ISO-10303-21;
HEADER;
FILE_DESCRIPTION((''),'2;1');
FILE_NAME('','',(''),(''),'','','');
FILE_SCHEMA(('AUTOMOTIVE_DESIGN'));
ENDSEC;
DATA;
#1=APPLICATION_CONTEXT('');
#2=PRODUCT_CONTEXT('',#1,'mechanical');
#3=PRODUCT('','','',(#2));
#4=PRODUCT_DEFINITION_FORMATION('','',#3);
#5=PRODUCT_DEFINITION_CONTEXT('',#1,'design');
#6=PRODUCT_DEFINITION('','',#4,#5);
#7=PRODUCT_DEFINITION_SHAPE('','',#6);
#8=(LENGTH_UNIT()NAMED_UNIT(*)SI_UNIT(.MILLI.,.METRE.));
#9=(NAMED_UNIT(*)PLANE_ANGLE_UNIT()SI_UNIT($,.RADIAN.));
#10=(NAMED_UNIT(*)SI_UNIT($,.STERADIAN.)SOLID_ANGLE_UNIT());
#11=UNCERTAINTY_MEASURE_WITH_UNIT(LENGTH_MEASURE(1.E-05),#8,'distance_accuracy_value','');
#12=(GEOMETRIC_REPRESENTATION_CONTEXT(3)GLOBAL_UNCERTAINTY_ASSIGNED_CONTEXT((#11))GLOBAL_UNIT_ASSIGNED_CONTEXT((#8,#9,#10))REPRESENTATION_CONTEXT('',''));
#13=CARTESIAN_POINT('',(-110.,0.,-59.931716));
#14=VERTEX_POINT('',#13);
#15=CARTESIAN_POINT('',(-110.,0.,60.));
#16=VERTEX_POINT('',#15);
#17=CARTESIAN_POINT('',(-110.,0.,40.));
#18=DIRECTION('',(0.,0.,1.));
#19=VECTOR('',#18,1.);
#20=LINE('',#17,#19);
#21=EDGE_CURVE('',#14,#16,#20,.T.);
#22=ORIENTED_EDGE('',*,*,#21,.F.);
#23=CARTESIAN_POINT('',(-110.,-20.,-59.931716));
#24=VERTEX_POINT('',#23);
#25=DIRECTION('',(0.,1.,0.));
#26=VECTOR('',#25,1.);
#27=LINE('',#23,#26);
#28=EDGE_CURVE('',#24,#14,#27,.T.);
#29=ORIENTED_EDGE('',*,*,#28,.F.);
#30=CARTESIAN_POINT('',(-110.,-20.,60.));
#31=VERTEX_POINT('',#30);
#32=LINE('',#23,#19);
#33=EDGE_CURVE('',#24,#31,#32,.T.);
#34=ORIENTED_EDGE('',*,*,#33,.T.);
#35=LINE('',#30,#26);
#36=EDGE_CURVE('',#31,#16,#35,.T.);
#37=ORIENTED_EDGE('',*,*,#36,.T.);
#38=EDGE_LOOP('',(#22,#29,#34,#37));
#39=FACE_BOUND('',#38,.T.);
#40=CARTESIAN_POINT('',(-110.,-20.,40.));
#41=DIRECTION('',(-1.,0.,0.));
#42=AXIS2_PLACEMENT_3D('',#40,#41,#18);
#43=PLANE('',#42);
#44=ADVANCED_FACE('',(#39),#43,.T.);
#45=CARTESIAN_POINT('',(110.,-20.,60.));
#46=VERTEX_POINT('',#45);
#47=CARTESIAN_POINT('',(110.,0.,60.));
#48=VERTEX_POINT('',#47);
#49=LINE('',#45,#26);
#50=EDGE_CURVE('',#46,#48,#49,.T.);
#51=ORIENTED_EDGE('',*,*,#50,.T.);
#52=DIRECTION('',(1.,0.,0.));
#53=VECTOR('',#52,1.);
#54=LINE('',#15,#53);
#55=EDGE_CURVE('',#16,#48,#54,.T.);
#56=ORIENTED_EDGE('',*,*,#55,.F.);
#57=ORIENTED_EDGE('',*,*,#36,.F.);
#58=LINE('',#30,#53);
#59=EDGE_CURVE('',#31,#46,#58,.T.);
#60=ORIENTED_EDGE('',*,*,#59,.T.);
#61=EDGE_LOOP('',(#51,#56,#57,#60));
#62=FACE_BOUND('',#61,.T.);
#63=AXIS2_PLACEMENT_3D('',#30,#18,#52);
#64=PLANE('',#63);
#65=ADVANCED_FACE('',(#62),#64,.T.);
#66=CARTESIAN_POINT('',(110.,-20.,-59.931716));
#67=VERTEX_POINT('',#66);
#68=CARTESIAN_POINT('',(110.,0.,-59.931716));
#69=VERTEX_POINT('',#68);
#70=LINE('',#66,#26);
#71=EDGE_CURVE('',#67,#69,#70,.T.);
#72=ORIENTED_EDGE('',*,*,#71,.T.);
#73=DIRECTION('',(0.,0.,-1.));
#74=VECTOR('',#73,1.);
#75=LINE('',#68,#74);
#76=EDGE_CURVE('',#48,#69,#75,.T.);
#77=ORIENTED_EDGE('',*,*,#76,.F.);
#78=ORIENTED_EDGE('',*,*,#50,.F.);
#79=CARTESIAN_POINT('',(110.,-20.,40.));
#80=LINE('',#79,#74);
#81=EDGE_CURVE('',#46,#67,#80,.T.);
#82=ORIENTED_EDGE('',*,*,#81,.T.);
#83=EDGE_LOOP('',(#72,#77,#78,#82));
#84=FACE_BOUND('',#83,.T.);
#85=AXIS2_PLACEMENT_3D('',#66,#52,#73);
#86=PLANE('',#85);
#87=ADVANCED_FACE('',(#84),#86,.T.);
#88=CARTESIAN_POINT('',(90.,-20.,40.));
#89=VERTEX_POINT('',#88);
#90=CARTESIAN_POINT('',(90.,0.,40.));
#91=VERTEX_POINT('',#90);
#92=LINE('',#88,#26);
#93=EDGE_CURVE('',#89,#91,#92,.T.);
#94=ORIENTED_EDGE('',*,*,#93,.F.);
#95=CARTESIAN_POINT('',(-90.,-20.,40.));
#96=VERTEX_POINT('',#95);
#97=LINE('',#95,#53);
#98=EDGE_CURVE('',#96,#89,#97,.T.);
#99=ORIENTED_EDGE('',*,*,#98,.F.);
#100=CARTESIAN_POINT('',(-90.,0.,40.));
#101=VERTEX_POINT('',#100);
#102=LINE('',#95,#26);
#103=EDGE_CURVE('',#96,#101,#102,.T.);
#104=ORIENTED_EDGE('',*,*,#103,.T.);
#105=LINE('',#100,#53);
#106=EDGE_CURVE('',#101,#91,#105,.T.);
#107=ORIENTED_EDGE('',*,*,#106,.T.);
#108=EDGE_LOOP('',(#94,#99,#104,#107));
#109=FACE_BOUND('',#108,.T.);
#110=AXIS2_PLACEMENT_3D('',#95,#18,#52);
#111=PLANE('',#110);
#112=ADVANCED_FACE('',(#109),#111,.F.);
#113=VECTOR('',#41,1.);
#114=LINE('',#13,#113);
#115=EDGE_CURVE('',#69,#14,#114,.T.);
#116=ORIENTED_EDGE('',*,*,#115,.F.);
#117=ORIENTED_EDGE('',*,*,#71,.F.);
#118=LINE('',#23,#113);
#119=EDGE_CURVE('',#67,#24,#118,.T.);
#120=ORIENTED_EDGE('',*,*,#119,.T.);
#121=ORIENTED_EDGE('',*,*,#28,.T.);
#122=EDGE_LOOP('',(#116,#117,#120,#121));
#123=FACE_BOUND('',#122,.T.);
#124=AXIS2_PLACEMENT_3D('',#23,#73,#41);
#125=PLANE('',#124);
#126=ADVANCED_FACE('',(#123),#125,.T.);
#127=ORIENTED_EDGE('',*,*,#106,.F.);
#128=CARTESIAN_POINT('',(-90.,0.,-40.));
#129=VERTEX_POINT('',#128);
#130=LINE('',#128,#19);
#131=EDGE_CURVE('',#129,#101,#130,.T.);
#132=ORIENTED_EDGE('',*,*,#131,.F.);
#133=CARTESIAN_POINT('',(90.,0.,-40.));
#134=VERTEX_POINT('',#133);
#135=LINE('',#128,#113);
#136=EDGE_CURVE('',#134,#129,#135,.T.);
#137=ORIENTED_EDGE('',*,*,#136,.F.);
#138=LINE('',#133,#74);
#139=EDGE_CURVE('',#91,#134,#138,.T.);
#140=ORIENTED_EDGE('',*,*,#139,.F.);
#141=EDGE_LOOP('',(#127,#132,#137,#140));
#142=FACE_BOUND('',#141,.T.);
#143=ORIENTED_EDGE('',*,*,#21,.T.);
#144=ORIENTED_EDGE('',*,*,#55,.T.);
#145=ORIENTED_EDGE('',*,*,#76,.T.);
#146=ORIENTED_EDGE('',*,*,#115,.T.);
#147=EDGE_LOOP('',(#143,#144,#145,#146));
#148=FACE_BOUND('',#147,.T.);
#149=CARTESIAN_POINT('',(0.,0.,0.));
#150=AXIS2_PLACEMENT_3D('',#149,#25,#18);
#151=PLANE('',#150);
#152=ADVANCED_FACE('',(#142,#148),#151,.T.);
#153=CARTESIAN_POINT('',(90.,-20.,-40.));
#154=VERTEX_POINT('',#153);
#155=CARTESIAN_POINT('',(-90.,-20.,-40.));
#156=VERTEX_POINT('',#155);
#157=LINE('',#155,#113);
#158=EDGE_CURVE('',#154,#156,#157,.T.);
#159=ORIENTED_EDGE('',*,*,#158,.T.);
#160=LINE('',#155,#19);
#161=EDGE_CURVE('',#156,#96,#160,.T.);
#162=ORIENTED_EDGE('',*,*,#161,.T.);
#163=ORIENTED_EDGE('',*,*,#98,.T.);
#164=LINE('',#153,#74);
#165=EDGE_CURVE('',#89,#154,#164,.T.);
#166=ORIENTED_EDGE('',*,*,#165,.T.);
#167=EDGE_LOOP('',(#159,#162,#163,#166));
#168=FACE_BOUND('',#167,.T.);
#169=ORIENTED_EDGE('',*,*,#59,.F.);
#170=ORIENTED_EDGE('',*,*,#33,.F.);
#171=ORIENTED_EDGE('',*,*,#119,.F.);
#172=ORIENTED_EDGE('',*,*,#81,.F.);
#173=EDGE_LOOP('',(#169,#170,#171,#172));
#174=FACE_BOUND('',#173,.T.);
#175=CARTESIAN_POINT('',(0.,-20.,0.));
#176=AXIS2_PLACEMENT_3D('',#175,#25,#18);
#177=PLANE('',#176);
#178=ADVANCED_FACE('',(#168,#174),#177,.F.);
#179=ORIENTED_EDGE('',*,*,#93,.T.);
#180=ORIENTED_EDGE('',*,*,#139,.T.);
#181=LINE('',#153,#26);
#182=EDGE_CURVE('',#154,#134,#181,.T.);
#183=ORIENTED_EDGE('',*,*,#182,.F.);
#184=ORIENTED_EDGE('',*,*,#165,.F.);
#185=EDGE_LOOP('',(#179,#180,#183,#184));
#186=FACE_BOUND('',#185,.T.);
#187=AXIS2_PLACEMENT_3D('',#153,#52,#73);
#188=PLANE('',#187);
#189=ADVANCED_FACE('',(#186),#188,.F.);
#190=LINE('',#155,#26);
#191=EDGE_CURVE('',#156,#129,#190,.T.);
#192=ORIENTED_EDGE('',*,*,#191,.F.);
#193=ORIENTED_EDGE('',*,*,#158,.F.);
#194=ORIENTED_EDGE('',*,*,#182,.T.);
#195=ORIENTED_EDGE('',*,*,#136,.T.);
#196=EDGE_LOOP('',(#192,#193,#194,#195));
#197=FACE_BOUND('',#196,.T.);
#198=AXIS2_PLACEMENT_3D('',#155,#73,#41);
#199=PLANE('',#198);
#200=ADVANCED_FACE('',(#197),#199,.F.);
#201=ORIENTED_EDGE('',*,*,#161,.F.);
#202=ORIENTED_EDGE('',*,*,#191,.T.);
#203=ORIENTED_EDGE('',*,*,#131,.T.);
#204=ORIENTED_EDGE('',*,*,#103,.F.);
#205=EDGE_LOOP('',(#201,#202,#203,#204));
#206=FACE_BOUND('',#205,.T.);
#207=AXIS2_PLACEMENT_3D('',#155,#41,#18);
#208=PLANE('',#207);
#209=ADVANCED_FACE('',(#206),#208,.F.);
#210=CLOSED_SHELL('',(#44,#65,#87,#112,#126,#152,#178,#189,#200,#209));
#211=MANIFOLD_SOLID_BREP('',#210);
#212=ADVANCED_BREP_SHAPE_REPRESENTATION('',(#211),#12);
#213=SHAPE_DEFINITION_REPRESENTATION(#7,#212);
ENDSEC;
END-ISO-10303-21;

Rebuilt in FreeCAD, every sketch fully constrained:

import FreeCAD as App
import Part
import Sketcher
from FreeCAD import Vector


def add_polygon(sketch, points):
    """Adds a closed chain of lines whose ends are joined by coincident constraints."""
    first, n = sketch.GeometryCount, len(points)
    for a, b in zip(points, points[1:] + points[:1]):
        sketch.addGeometry(Part.LineSegment(App.Vector(*a, 0), App.Vector(*b, 0)), False)
    for i in range(n):
        sketch.addConstraint(Sketcher.Constraint("Coincident", first + i, 2, first + (i + 1) % n, 1))

doc = App.newDocument("Part")
body = doc.addObject("PartDesign::Body", "Body")

# Sketch on XZ plane
sketch1 = body.newObject("Sketcher::SketchObject", "Sketch")
sketch1.AttachmentSupport = (doc.getObject("XZ_Plane"), [""])
sketch1.MapMode = "FlatFace"
add_polygon(sketch1, [(-110, 60), (110, 60), (110, -59.931716), (-110, -59.931716)])  # lines 0-3
add_polygon(sketch1, [(90, 40), (-90, 40), (-90, -40), (90, -40)])  # lines 4-7
sketch1.addConstraint(Sketcher.Constraint("Horizontal", 0))
sketch1.addConstraint(Sketcher.Constraint("Vertical", 1))
sketch1.addConstraint(Sketcher.Constraint("Horizontal", 2))
sketch1.addConstraint(Sketcher.Constraint("Vertical", 3))
sketch1.addConstraint(Sketcher.Constraint("Horizontal", 4))
sketch1.addConstraint(Sketcher.Constraint("Vertical", 5))
sketch1.addConstraint(Sketcher.Constraint("Horizontal", 6))
sketch1.addConstraint(Sketcher.Constraint("Vertical", 7))
sketch1.addConstraint(Sketcher.Constraint("Symmetric", 4, 2, 6, 2, -1, 1))
sketch1.addConstraint(Sketcher.Constraint("DistanceX", 0, 1, 0, 2, 220.0))
sketch1.addConstraint(Sketcher.Constraint("DistanceX", 4, 2, 4, 1, 180.0))
sketch1.addConstraint(Sketcher.Constraint("DistanceY", 5, 2, 5, 1, 80.0))
sketch1.addConstraint(Sketcher.Constraint("DistanceX", -1, 1, 0, 2, 110.0))
sketch1.addConstraint(Sketcher.Constraint("DistanceY", -1, 1, 0, 2, 60.0))
sketch1.addConstraint(Sketcher.Constraint("DistanceY", 1, 2, 1, 1, 119.931716))
pad1 = body.newObject("PartDesign::Pad", "Pad")
pad1.Profile = sketch1
pad1.Length = 20

doc.recompute()
